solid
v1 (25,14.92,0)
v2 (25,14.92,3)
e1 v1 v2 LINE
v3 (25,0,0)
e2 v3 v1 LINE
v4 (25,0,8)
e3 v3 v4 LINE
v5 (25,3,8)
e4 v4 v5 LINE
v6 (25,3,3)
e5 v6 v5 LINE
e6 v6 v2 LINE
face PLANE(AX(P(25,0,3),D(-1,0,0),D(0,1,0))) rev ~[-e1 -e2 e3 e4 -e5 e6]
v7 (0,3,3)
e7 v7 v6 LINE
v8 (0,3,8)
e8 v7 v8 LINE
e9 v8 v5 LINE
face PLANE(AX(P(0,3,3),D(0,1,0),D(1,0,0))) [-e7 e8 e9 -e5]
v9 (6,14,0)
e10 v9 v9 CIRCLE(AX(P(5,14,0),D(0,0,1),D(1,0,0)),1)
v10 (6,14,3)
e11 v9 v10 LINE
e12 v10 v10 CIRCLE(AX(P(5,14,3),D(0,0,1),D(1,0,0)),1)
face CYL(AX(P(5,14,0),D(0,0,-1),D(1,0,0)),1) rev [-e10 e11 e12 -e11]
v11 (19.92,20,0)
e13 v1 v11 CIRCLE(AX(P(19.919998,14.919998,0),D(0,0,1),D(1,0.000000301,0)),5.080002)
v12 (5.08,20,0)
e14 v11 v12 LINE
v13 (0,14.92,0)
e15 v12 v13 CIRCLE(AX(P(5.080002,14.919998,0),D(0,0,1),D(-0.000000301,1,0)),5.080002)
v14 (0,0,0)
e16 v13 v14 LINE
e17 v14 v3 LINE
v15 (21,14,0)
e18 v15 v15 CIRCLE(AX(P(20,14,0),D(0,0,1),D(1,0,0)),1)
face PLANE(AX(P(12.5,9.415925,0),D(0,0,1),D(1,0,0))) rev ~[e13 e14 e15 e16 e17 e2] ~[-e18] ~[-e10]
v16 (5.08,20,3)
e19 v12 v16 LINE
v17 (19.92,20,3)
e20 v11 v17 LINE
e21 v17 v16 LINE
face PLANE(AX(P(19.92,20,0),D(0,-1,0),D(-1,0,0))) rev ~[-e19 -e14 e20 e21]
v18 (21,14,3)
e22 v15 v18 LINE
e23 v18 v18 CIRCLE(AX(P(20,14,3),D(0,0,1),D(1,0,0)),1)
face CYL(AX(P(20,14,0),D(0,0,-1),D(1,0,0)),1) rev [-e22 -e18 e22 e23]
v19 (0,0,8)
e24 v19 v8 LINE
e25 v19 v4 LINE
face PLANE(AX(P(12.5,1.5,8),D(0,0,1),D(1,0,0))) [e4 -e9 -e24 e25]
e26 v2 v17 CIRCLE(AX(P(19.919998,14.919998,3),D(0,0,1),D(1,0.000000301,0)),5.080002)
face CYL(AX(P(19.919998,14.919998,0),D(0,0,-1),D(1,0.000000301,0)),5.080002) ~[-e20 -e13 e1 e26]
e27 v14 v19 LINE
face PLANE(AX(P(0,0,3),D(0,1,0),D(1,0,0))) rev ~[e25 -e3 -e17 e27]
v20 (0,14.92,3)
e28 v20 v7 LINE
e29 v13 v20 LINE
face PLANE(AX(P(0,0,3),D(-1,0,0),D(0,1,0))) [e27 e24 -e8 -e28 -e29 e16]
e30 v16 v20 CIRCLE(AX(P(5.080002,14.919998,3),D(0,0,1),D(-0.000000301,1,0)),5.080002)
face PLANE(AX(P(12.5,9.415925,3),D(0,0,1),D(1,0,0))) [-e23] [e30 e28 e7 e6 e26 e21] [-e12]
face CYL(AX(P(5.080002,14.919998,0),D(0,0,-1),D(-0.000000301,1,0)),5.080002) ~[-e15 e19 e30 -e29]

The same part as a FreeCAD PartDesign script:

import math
import FreeCAD as App
import Part
import Sketcher

V = App.Vector

doc = App.newDocument("Part")
body = doc.addObject("PartDesign::Body", "Body")

# Sketch on XY plane
sketch1 = body.newObject("Sketcher::SketchObject", "Sketch")
sketch1.AttachmentSupport = (doc.getObject("XY_Plane"), [""])
sketch1.MapMode = "FlatFace"
sketch1.addGeometry([
    Part.LineSegment(V(0, 14.9, 0), V(0, 0, 0)),  # 0
    Part.LineSegment(V(0, 0, 0), V(25, 0, 0)),  # 1
    Part.LineSegment(V(25, 0, 0), V(25, 14.9, 0)),  # 2
    Part.ArcOfCircle(Part.Circle(V(19.9, 14.9, 0), V(0, 0, 1), 5.1), math.radians(0), math.radians(90)),  # 3
    Part.LineSegment(V(19.9, 20, 0), V(5.1, 20, 0)),  # 4
    Part.ArcOfCircle(Part.Circle(V(5.1, 14.9, 0), V(0, 0, 1), 5.1), math.radians(90), math.radians(180)),  # 5
    Part.Circle(V(5, 14, 0), V(0, 0, 1), 1),  # 6
    Part.Circle(V(20, 14, 0), V(0, 0, 1), 1),  # 7
], False)
sketch1.addConstraint([
    Sketcher.Constraint("Coincident", 0, 2, 1, 1),
    Sketcher.Constraint("Coincident", 1, 2, 2, 1),
    Sketcher.Constraint("Tangent", 2, 2, 3, 1),
    Sketcher.Constraint("Tangent", 3, 2, 4, 1),
    Sketcher.Constraint("Tangent", 4, 2, 5, 1),
    Sketcher.Constraint("Tangent", 5, 2, 0, 1),
    Sketcher.Constraint("Vertical", 0),
    Sketcher.Constraint("Horizontal", 1),
    Sketcher.Constraint("Vertical", 2),
    Sketcher.Constraint("Horizontal", 4),
    Sketcher.Constraint("Coincident", 0, 2, -1, 1),
    Sketcher.Constraint("Equal", 3, 5),
    Sketcher.Constraint("Equal", 6, 7),
    Sketcher.Constraint("Horizontal", 6, 3, 7, 3),
    Sketcher.Constraint("Diameter", 6, 2.0),
    Sketcher.Constraint("DistanceX", 1, 1, 1, 2, 25.0),
    Sketcher.Constraint("Radius", 3, 5.080002),
    Sketcher.Constraint("DistanceX", -1, 1, 6, 3, 5.0),
    Sketcher.Constraint("DistanceY", -1, 1, 6, 3, 14.0),
    Sketcher.Constraint("DistanceX", -1, 1, 7, 3, 20.0),
    Sketcher.Constraint("DistanceY", -1, 1, 3, 2, 20.0),
])
pad1 = body.newObject("PartDesign::Pad", "Pad")
pad1.Profile = sketch1
pad1.Length = 3

# Sketch on XY plane
sketch2 = body.newObject("Sketcher::SketchObject", "Sketch001")
sketch2.AttachmentSupport = (doc.getObject("XY_Plane"), [""])
sketch2.MapMode = "FlatFace"
sketch2.AttachmentOffset = App.Placement(V(0, 0, 3), App.Rotation())
sketch2.addGeometry([
    Part.LineSegment(V(0, 3, 0), V(0, 0, 0)),
    Part.LineSegment(V(0, 0, 0), V(25, 0, 0)),
    Part.LineSegment(V(25, 0, 0), V(25, 3, 0)),
    Part.LineSegment(V(25, 3, 0), V(0, 3, 0)),
], False)
sketch2.addConstraint([
    Sketcher.Constraint("Coincident", 0, 2, 1, 1),
    Sketcher.Constraint("Coincident", 1, 2, 2, 1),
    Sketcher.Constraint("Coincident", 2, 2, 3, 1),
    Sketcher.Constraint("Coincident", 3, 2, 0, 1),
    Sketcher.Constraint("Vertical", 0),
    Sketcher.Constraint("Horizontal", 1),
    Sketcher.Constraint("Vertical", 2),
    Sketcher.Constraint("Horizontal", 3),
    Sketcher.Constraint("Coincident", 0, 2, -1, 1),
    Sketcher.Constraint("DistanceX", 1, 1, 1, 2, 25.0),
    Sketcher.Constraint("DistanceY", 0, 2, 0, 1, 3.0),
])
pad2 = body.newObject("PartDesign::Pad", "Pad001")
pad2.Profile = sketch2
pad2.Length = 5

doc.recompute()
